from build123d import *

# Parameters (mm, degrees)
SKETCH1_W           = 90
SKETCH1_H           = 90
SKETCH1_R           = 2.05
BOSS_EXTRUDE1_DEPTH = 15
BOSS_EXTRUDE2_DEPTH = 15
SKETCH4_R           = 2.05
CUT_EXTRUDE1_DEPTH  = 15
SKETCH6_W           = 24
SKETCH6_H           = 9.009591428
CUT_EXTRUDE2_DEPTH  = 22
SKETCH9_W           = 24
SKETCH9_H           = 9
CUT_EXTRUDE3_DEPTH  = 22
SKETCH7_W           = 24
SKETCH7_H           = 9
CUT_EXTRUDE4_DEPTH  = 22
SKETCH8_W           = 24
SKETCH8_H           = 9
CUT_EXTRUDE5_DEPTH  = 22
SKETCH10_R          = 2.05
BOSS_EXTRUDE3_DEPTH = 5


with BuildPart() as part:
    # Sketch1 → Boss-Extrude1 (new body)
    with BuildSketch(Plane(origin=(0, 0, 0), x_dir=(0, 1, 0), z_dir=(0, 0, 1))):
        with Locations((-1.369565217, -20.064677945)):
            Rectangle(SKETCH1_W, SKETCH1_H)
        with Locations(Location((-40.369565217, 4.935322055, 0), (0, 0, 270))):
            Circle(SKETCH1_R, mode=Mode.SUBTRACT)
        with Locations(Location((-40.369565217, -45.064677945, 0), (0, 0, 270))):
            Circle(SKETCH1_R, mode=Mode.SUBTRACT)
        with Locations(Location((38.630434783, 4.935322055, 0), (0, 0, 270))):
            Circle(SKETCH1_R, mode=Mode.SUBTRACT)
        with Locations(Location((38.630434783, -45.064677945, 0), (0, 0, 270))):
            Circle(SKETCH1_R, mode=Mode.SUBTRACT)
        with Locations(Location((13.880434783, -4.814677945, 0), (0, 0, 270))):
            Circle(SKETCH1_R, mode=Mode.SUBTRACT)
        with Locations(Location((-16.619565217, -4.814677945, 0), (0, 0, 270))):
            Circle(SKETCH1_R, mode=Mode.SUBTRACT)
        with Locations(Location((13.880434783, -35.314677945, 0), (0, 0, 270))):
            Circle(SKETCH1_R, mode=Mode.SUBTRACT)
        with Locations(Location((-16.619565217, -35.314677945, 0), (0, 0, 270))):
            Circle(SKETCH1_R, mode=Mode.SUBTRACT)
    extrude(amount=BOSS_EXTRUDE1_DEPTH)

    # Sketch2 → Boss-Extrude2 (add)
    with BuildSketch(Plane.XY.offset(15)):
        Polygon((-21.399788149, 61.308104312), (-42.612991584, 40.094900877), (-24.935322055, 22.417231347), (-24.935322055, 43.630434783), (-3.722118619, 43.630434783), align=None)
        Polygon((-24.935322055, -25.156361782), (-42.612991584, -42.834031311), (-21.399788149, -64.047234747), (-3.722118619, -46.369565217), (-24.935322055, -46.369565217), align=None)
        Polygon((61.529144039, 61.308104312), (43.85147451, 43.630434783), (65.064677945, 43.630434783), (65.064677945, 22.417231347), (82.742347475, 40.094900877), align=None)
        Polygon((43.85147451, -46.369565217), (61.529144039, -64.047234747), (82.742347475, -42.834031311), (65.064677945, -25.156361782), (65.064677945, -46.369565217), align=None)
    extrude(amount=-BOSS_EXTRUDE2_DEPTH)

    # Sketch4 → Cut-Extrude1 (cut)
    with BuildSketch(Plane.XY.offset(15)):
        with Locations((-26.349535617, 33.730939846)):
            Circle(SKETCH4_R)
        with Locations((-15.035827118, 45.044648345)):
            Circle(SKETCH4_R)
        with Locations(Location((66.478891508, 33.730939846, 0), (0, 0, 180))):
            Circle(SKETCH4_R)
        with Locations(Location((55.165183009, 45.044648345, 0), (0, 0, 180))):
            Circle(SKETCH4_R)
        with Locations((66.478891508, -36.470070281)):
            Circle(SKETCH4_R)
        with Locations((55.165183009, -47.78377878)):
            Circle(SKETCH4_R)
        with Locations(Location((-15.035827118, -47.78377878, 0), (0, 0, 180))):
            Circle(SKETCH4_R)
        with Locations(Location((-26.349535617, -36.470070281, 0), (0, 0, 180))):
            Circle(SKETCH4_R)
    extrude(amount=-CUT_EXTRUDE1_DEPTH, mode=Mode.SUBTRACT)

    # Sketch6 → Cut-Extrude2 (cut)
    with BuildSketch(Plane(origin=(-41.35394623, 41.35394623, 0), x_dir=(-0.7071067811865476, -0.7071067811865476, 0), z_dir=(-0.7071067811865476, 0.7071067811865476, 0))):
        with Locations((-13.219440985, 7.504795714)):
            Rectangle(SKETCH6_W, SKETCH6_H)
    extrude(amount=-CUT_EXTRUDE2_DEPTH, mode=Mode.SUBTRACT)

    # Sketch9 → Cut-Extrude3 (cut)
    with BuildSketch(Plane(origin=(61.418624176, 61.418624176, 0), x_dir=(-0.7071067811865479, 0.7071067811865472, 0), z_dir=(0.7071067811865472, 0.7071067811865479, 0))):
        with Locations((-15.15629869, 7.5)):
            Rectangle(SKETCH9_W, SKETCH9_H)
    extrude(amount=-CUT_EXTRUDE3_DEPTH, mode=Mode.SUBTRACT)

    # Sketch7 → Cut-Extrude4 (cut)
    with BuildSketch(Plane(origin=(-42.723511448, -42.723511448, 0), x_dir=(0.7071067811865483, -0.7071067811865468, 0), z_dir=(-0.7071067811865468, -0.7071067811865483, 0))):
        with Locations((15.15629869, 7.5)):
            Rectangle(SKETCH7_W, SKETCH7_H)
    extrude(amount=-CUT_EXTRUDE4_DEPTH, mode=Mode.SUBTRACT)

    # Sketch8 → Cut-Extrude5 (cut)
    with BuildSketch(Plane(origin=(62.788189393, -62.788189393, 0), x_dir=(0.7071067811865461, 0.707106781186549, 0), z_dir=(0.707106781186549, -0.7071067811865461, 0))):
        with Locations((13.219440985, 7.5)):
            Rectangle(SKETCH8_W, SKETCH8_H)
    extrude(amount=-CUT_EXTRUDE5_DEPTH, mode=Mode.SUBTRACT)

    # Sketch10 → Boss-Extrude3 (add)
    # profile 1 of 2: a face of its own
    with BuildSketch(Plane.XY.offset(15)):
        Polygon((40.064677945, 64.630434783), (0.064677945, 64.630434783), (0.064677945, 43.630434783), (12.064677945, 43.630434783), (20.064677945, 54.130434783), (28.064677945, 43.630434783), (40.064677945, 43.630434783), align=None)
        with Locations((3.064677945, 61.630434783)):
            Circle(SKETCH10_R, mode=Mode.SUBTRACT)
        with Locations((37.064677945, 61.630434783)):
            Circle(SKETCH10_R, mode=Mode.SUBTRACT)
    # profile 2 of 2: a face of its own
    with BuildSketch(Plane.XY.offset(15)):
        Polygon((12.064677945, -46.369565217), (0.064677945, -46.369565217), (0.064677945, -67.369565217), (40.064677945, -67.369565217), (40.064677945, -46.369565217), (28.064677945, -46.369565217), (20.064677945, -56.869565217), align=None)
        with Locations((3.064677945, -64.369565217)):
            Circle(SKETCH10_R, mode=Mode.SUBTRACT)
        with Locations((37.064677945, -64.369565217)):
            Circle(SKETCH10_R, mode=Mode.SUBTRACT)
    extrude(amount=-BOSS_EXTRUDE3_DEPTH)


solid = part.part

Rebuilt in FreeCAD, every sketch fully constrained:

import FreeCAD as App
import Part
import Sketcher

V = App.Vector
Q = App.Units.Quantity

doc = App.newDocument("Part")
params = doc.addObject("Spreadsheet::Sheet", "Params")
for row, (alias, value) in enumerate([
    ("sketch1_diameter", "4.1 mm"),
    ("sketch1_width", "90 mm"),
    ("pad1_length", "15 mm"),
    ("sketch2_length", "30 mm"),
    ("sketch2_length2", "25 mm"),
    ("pad2_length", "15 mm"),
    ("sketch3_diameter", "4.1 mm"),
    ("pocket1_length", "15 mm"),
    ("sketch4_width", "24 mm"),
    ("pocket2_length", "22 mm"),
    ("sketch5_width", "24 mm"),
    ("sketch5_height", "9 mm"),
    ("pocket3_length", "22 mm"),
    ("sketch6_width", "24 mm"),
    ("sketch6_height", "9 mm"),
    ("pocket4_length", "22 mm"),
    ("sketch7_width", "24 mm"),
    ("sketch7_height", "9 mm"),
    ("pocket5_length", "22 mm"),
    ("sketch8_diameter", "4.1 mm"),
    ("sketch8_width", "40 mm"),
    ("sketch8_width2", "12 mm"),
    ("sketch8_height", "21 mm"),
    ("pad3_length", "5 mm"),
], start=1):
    params.set(f"A{row}", alias)
    params.set(f"B{row}", "=" + value)
    params.setAlias(f"B{row}", alias)

body = doc.addObject("PartDesign::Body", "Body")

# Sketch on XY plane
sketch1 = doc.addObject("Sketcher::SketchObject", "Sketch")
body.addObject(sketch1)
sketch1.AttachmentSupport = (doc.XY_Plane, [""])
sketch1.MapMode = "FlatFace"
sketch1.addGeometry(Part.LineSegment(V(-24.9, -46.4, 0), V(65.1, -46.4, 0)), False)
sketch1.addGeometry(Part.LineSegment(V(65.1, -46.4, 0), V(65.1, 43.6, 0)), False)
sketch1.addGeometry(Part.LineSegment(V(65.1, 43.6, 0), V(-24.9, 43.6, 0)), False)
sketch1.addGeometry(Part.LineSegment(V(-24.9, 43.6, 0), V(-24.9, -46.4, 0)), False)
sketch1.addGeometry(Part.Circle(V(45.1, -40.4, 0), V(0, 0, 1), 2), False)
sketch1.addGeometry(Part.Circle(V(35.3, -16.6, 0), V(0, 0, 1), 2), False)
sketch1.addGeometry(Part.Circle(V(35.3, 13.9, 0), V(0, 0, 1), 2), False)
sketch1.addGeometry(Part.Circle(V(45.1, 38.6, 0), V(0, 0, 1), 2), False)
sketch1.addGeometry(Part.Circle(V(-4.9, -40.4, 0), V(0, 0, 1), 2), False)
sketch1.addGeometry(Part.Circle(V(4.8, -16.6, 0), V(0, 0, 1), 2), False)
sketch1.addGeometry(Part.Circle(V(4.8, 13.9, 0), V(0, 0, 1), 2), False)
sketch1.addGeometry(Part.Circle(V(-4.9, 38.6, 0), V(0, 0, 1), 2), False)
sketch1.addConstraint(Sketcher.Constraint("Coincident", 0, 2, 1, 1))
sketch1.addConstraint(Sketcher.Constraint("Coincident", 1, 2, 2, 1))
sketch1.addConstraint(Sketcher.Constraint("Coincident", 2, 2, 3, 1))
sketch1.addConstraint(Sketcher.Constraint("Coincident", 3, 2, 0, 1))
sketch1.addConstraint(Sketcher.Constraint("Horizontal", 0))
sketch1.addConstraint(Sketcher.Constraint("Vertical", 1))
sketch1.addConstraint(Sketcher.Constraint("Horizontal", 2))
sketch1.addConstraint(Sketcher.Constraint("Vertical", 3))
sketch1.addConstraint(Sketcher.Constraint("Equal", 4, 5))
sketch1.addConstraint(Sketcher.Constraint("Equal", 5, 6))
sketch1.addConstraint(Sketcher.Constraint("Equal", 6, 7))
sketch1.addConstraint(Sketcher.Constraint("Equal", 7, 8))
sketch1.addConstraint(Sketcher.Constraint("Equal", 8, 9))
sketch1.addConstraint(Sketcher.Constraint("Equal", 9, 10))
sketch1.addConstraint(Sketcher.Constraint("Equal", 10, 11))
sketch1.addConstraint(Sketcher.Constraint("Horizontal", 4, 3, 8, 3))
sketch1.addConstraint(Sketcher.Constraint("Horizontal", 5, 3, 9, 3))
sketch1.addConstraint(Sketcher.Constraint("Horizontal", 6, 3, 10, 3))
sketch1.addConstraint(Sketcher.Constraint("Horizontal", 7, 3, 11, 3))
sketch1.addConstraint(Sketcher.Constraint("Vertical", 5, 3, 6, 3))
sketch1.addConstraint(Sketcher.Constraint("Vertical", 4, 3, 7, 3))
sketch1.addConstraint(Sketcher.Constraint("Vertical", 9, 3, 10, 3))
sketch1.addConstraint(Sketcher.Constraint("Vertical", 8, 3, 11, 3))
sketch1.addConstraint(Sketcher.Constraint("Equal", 2, 1))
sketch1.addConstraint(Sketcher.Constraint("Diameter", 4, Q("4.1 mm")))
sketch1.addConstraint(Sketcher.Constraint("DistanceX", 0, 1, 0, 2, Q("90 mm")))
sketch1.addConstraint(Sketcher.Constraint("DistanceY", 4, 3, 7, 3, Q("79 mm")))
sketch1.addConstraint(Sketcher.Constraint("DistanceX", 8, 3, 4, 3, Q("50 mm")))
sketch1.addConstraint(Sketcher.Constraint("DistanceX", 4, 3, 0, 2, Q("20 mm")))
sketch1.addConstraint(Sketcher.Constraint("DistanceY", 0, 2, 4, 3, Q("6 mm")))
sketch1.addConstraint(Sketcher.Constraint("DistanceY", 5, 3, 6, 3, Q("30.5 mm")))
sketch1.addConstraint(Sketcher.Constraint("DistanceX", 9, 3, 5, 3, Q("30.5 mm")))
sketch1.addConstraint(Sketcher.Constraint("DistanceX", 5, 3, 4, 3, Q("9.75 mm")))
sketch1.addConstraint(Sketcher.Constraint("DistanceY", 4, 3, 5, 3, Q("23.75 mm")))
sketch1.addConstraint(Sketcher.Constraint("DistanceX", -1, 1, 4, 3, Q("45.064678 mm")))
sketch1.addConstraint(Sketcher.Constraint("DistanceY", 4, 3, -1, 1, Q("40.369565 mm")))
sketch1.setExpression("Constraints[24]", "Params.sketch1_diameter")
sketch1.setExpression("Constraints[25]", "Params.sketch1_width")
pad1 = doc.addObject("PartDesign::Pad", "Pad")
body.addObject(pad1)
pad1.Profile = sketch1
pad1.setExpression("Length", "Params.pad1_length")

# Sketch on XY plane
sketch2 = doc.addObject("Sketcher::SketchObject", "Sketch001")
body.addObject(sketch2)
sketch2.AttachmentSupport = (doc.XY_Plane, [""])
sketch2.MapMode = "FlatFace"
sketch2.AttachmentOffset = App.Placement(V(0, 0, 15), App.Rotation())
sketch2.addGeometry(Part.LineSegment(V(-21, 61, 0), V(-43, 40, 0)), False)
sketch2.addGeometry(Part.LineSegment(V(-43, 40, 0), V(-25, 22, 0)), False)
sketch2.addGeometry(Part.LineSegment(V(-25, 22, 0), V(-25, 44, 0)), False)
sketch2.addGeometry(Part.LineSegment(V(-25, 44, 0), V(-4, 44, 0)), False)
sketch2.addGeometry(Part.LineSegment(V(-4, 44, 0), V(-21, 61, 0)), False)
sketch2.addGeometry(Part.LineSegment(V(-25, -25, 0), V(-43, -43, 0)), False)
sketch2.addGeometry(Part.LineSegment(V(-43, -43, 0), V(-21, -64, 0)), False)
sketch2.addGeometry(Part.LineSegment(V(-21, -64, 0), V(-4, -46, 0)), False)
sketch2.addGeometry(Part.LineSegment(V(-4, -46, 0), V(-25, -46, 0)), False)
sketch2.addGeometry(Part.LineSegment(V(-25, -46, 0), V(-25, -25, 0)), False)
sketch2.addGeometry(Part.LineSegment(V(62, 61, 0), V(44, 44, 0)), False)
sketch2.addGeometry(Part.LineSegment(V(44, 44, 0), V(65, 44, 0)), False)
sketch2.addGeometry(Part.LineSegment(V(65, 44, 0), V(65, 22, 0)), False)
sketch2.addGeometry(Part.LineSegment(V(65, 22, 0), V(83, 40, 0)), False)
sketch2.addGeometry(Part.LineSegment(V(83, 40, 0), V(62, 61, 0)), False)
sketch2.addGeometry(Part.LineSegment(V(44, -46, 0), V(62, -64, 0)), False)
sketch2.addGeometry(Part.LineSegment(V(62, -64, 0), V(83, -43, 0)), False)
sketch2.addGeometry(Part.LineSegment(V(83, -43, 0), V(65, -25, 0)), False)
sketch2.addGeometry(Part.LineSegment(V(65, -25, 0), V(65, -46, 0)), False)
sketch2.addGeometry(Part.LineSegment(V(65, -46, 0), V(44, -46, 0)), False)
sketch2.addConstraint(Sketcher.Constraint("Coincident", 0, 2, 1, 1))
sketch2.addConstraint(Sketcher.Constraint("Coincident", 1, 2, 2, 1))
sketch2.addConstraint(Sketcher.Constraint("Coincident", 2, 2, 3, 1))
sketch2.addConstraint(Sketcher.Constraint("Coincident", 3, 2, 4, 1))
sketch2.addConstraint(Sketcher.Constraint("Coincident", 4, 2, 0, 1))
sketch2.addConstraint(Sketcher.Constraint("Coincident", 5, 2, 6, 1))
sketch2.addConstraint(Sketcher.Constraint("Coincident", 6, 2, 7, 1))
sketch2.addConstraint(Sketcher.Constraint("Coincident", 7, 2, 8, 1))
sketch2.addConstraint(Sketcher.Constraint("Coincident", 8, 2, 9, 1))
sketch2.addConstraint(Sketcher.Constraint("Coincident", 9, 2, 5, 1))
sketch2.addConstraint(Sketcher.Constraint("Coincident", 10, 2, 11, 1))
sketch2.addConstraint(Sketcher.Constraint("Coincident", 11, 2, 12, 1))
sketch2.addConstraint(Sketcher.Constraint("Coincident", 12, 2, 13, 1))
sketch2.addConstraint(Sketcher.Constraint("Coincident", 13, 2, 14, 1))
sketch2.addConstraint(Sketcher.Constraint("Coincident", 14, 2, 10, 1))
sketch2.addConstraint(Sketcher.Constraint("Coincident", 15, 2, 16, 1))
sketch2.addConstraint(Sketcher.Constraint("Coincident", 16, 2, 17, 1))
sketch2.addConstraint(Sketcher.Constraint("Coincident", 17, 2, 18, 1))
sketch2.addConstraint(Sketcher.Constraint("Coincident", 18, 2, 19, 1))
sketch2.addConstraint(Sketcher.Constraint("Coincident", 19, 2, 15, 1))
sketch2.addConstraint(Sketcher.Constraint("Vertical", 2))
sketch2.addConstraint(Sketcher.Constraint("Horizontal", 3))
sketch2.addConstraint(Sketcher.Constraint("Horizontal", 8))
sketch2.addConstraint(Sketcher.Constraint("Vertical", 9))
sketch2.addConstraint(Sketcher.Constraint("Horizontal", 11))
sketch2.addConstraint(Sketcher.Constraint("Vertical", 12))
sketch2.addConstraint(Sketcher.Constraint("Vertical", 18))
sketch2.addConstraint(Sketcher.Constraint("Horizontal", 19))
sketch2.addConstraint(Sketcher.Constraint("Perpendicular", 0, 1))
sketch2.addConstraint(Sketcher.Constraint("Parallel", 1, 4))
sketch2.addConstraint(Sketcher.Constraint("Perpendicular", 4, 5))
sketch2.addConstraint(Sketcher.Constraint("Perpendicular", 5, 6))
sketch2.addConstraint(Sketcher.Constraint("Perpendicular", 6, 7))
sketch2.addConstraint(Sketcher.Constraint("Parallel", 7, 10))
sketch2.addConstraint(Sketcher.Constraint("Parallel", 10, 13))
sketch2.addConstraint(Sketcher.Constraint("Perpendicular", 13, 14))
sketch2.addConstraint(Sketcher.Constraint("Parallel", 14, 15))
sketch2.addConstraint(Sketcher.Constraint("Perpendicular", 15, 16))
sketch2.addConstraint(Sketcher.Constraint("Perpendicular", 16, 17))
sketch2.addConstraint(Sketcher.Constraint("Horizontal", 3, 2, 10, 2))
sketch2.addConstraint(Sketcher.Constraint("Horizontal", 1, 2, 12, 2))
sketch2.addConstraint(Sketcher.Constraint("Horizontal", 0, 2, 13, 2))
sketch2.addConstraint(Sketcher.Constraint("Horizontal", 4, 2, 14, 2))
sketch2.addConstraint(Sketcher.Constraint("Horizontal", 6, 2, 15, 2))
sketch2.addConstraint(Sketcher.Constraint("Horizontal", 5, 2, 16, 2))
sketch2.addConstraint(Sketcher.Constraint("Horizontal", 9, 2, 17, 2))
sketch2.addConstraint(Sketcher.Constraint("Horizontal", 8, 2, 18, 2))
sketch2.addConstraint(Sketcher.Constraint("Vertical", 0, 2, 5, 2))
sketch2.addConstraint(Sketcher.Constraint("Vertical", 4, 2, 6, 2))
sketch2.addConstraint(Sketcher.Constraint("Vertical", 3, 2, 7, 2))
sketch2.addConstraint(Sketcher.Constraint("Vertical", 2, 2, 8, 2))
sketch2.addConstraint(Sketcher.Constraint("Vertical", 14, 2, 15, 2))
sketch2.addConstraint(Sketcher.Constraint("Vertical", 13, 2, 16, 2))
sketch2.addConstraint(Sketcher.Constraint("Equal", 19, 2))
sketch2.addConstraint(Sketcher.Constraint("Distance", 0, Q("30 mm")))
sketch2.addConstraint(Sketcher.Constraint("Distance", 1, Q("25 mm")))
sketch2.addConstraint(Sketcher.Constraint("DistanceY", 7, 2, 3, 2, Q("90 mm")))
sketch2.addConstraint(Sketcher.Constraint("DistanceX", 2, 2, 11, 2, Q("90 mm")))
sketch2.addConstraint(Sketcher.Constraint("DistanceY", -1, 1, 0, 2, Q("40.094901 mm")))
sketch2.addConstraint(Sketcher.Constraint("DistanceX", 0, 2, -1, 1, Q("42.612992 mm")))
sketch2.setExpression("Constraints[54]", "Params.sketch2_length")
sketch2.setExpression("Constraints[55]", "Params.sketch2_length2")
pad2 = doc.addObject("PartDesign::Pad", "Pad001")
body.addObject(pad2)
pad2.Profile = sketch2
pad2.setExpression("Length", "Params.pad2_length")
pad2.Reversed = True

# Sketch on XY plane
sketch3 = doc.addObject("Sketcher::SketchObject", "Sketch002")
body.addObject(sketch3)
sketch3.AttachmentSupport = (doc.XY_Plane, [""])
sketch3.MapMode = "FlatFace"
sketch3.AttachmentOffset = App.Placement(V(0, 0, 15), App.Rotation())
sketch3.addGeometry(Part.Circle(V(-26.3, 33.7, 0), V(0, 0, 1), 2), False)
sketch3.addGeometry(Part.Circle(V(-15, 45, 0), V(0, 0, 1), 2), False)
sketch3.addGeometry(Part.Circle(V(66.5, 33.7, 0), V(0, 0, 1), 2), False)
sketch3.addGeometry(Part.Circle(V(55.2, 45, 0), V(0, 0, 1), 2), False)
sketch3.addGeometry(Part.Circle(V(66.5, -36.5, 0), V(0, 0, 1), 2), False)
sketch3.addGeometry(Part.Circle(V(55.2, -47.8, 0), V(0, 0, 1), 2), False)
sketch3.addGeometry(Part.Circle(V(-15, -47.8, 0), V(0, 0, 1), 2), False)
sketch3.addGeometry(Part.Circle(V(-26.3, -36.5, 0), V(0, 0, 1), 2), False)
sketch3.addConstraint(Sketcher.Constraint("Equal", 0, 1))
sketch3.addConstraint(Sketcher.Constraint("Equal", 1, 2))
sketch3.addConstraint(Sketcher.Constraint("Equal", 2, 3))
sketch3.addConstraint(Sketcher.Constraint("Equal", 3, 4))
sketch3.addConstraint(Sketcher.Constraint("Equal", 4, 5))
sketch3.addConstraint(Sketcher.Constraint("Equal", 5, 6))
sketch3.addConstraint(Sketcher.Constraint("Equal", 6, 7))
sketch3.addConstraint(Sketcher.Constraint("Horizontal", 0, 3, 2, 3))
sketch3.addConstraint(Sketcher.Constraint("Horizontal", 1, 3, 3, 3))
sketch3.addConstraint(Sketcher.Constraint("Horizontal", 5, 3, 6, 3))
sketch3.addConstraint(Sketcher.Constraint("Horizontal", 4, 3, 7, 3))
sketch3.addConstraint(Sketcher.Constraint("Vertical", 2, 3, 4, 3))
sketch3.addConstraint(Sketcher.Constraint("Vertical", 3, 3, 5, 3))
sketch3.addConstraint(Sketcher.Constraint("Vertical", 1, 3, 6, 3))
sketch3.addConstraint(Sketcher.Constraint("Vertical", 0, 3, 7, 3))
sketch3.addConstraint(Sketcher.Constraint("Diameter", 0, Q("4.1 mm")))
sketch3.addConstraint(Sketcher.Constraint("DistanceY", -1, 1, 0, 3, Q("33.73094 mm")))
sketch3.addConstraint(Sketcher.Constraint("DistanceY", -1, 1, 1, 3, Q("45.044648 mm")))
sketch3.addConstraint(Sketcher.Constraint("DistanceX", -1, 1, 2, 3, Q("66.478892 mm")))
sketch3.addConstraint(Sketcher.Constraint("DistanceY", 4, 3, -1, 1, Q("36.47007 mm")))
sketch3.addConstraint(Sketcher.Constraint("DistanceY", 5, 3, -1, 1, Q("47.783779 mm")))
sketch3.addConstraint(Sketcher.Constraint("DistanceX", 0, 3, 1, 3, Q("11.313708 mm")))
sketch3.addConstraint(Sketcher.Constraint("DistanceX", 1, 3, 2, 3, Q("81.514719 mm")))
sketch3.addConstraint(Sketcher.Constraint("DistanceX", 3, 3, 2, 3, Q("11.313708 mm")))
sketch3.setExpression("Constraints[15]", "Params.sketch3_diameter")
pocket1 = doc.addObject("PartDesign::Pocket", "Pocket")
body.addObject(pocket1)
pocket1.Profile = sketch3
pocket1.setExpression("Length", "Params.pocket1_length")

# Sketch on an angled plane
sketch4 = doc.addObject("Sketcher::SketchObject", "Sketch003")
body.addObject(sketch4)
sketch4.Placement = App.Placement(V(-41.353946, 41.353946, 0), App.Rotation(V(-0.707106781, -0.707106781, 0), V(0, 0, 0.999999999), V(-0.707106781, 0.707106781, 0), "ZXY"))
sketch4.addGeometry(Part.LineSegment(V(-25, 12, 0), V(-25, 3, 0)), False)
sketch4.addGeometry(Part.LineSegment(V(-25, 3, 0), V(-1, 3, 0)), False)
sketch4.addGeometry(Part.LineSegment(V(-1, 3, 0), V(-1, 12, 0)), False)
sketch4.addGeometry(Part.LineSegment(V(-1, 12, 0), V(-25, 12, 0)), False)
sketch4.addConstraint(Sketcher.Constraint("Coincident", 0, 2, 1, 1))
sketch4.addConstraint(Sketcher.Constraint("Coincident", 1, 2, 2, 1))
sketch4.addConstraint(Sketcher.Constraint("Coincident", 2, 2, 3, 1))
sketch4.addConstraint(Sketcher.Constraint("Coincident", 3, 2, 0, 1))
sketch4.addConstraint(Sketcher.Constraint("Vertical", 0))
sketch4.addConstraint(Sketcher.Constraint("Horizontal", 1))
sketch4.addConstraint(Sketcher.Constraint("Vertical", 2))
sketch4.addConstraint(Sketcher.Constraint("Horizontal", 3))
sketch4.addConstraint(Sketcher.Constraint("DistanceX", 1, 1, 1, 2, Q("24 mm")))
sketch4.addConstraint(Sketcher.Constraint("DistanceY", -1, 1, 0, 2, Q("3 mm")))
sketch4.addConstraint(Sketcher.Constraint("DistanceY", 0, 2, 0, 1, Q("9.009591 mm")))
sketch4.addConstraint(Sketcher.Constraint("DistanceX", 0, 2, -1, 1, Q("25.219441 mm")))
sketch4.setExpression("Constraints[8]", "Params.sketch4_width")
pocket2 = doc.addObject("PartDesign::Pocket", "Pocket001")
body.addObject(pocket2)
pocket2.Profile = sketch4
pocket2.setExpression("Length", "Params.pocket2_length")

# Sketch on an angled plane
sketch5 = doc.addObject("Sketcher::SketchObject", "Sketch004")
body.addObject(sketch5)
sketch5.Placement = App.Placement(V(61.418624, 61.418624, 0), App.Rotation(V(-0.707106781, 0.707106781, 0), V(0, 0, 0.999999999), V(0.707106781, 0.707106781, 0), "ZXY"))
sketch5.addGeometry(Part.LineSegment(V(-27, 12, 0), V(-27, 3, 0)), False)
sketch5.addGeometry(Part.LineSegment(V(-27, 3, 0), V(-3, 3, 0)), False)
sketch5.addGeometry(Part.LineSegment(V(-3, 3, 0), V(-3, 12, 0)), False)
sketch5.addGeometry(Part.LineSegment(V(-3, 12, 0), V(-27, 12, 0)), False)
sketch5.addConstraint(Sketcher.Constraint("Coincident", 0, 2, 1, 1))
sketch5.addConstraint(Sketcher.Constraint("Coincident", 1, 2, 2, 1))
sketch5.addConstraint(Sketcher.Constraint("Coincident", 2, 2, 3, 1))
sketch5.addConstraint(Sketcher.Constraint("Coincident", 3, 2, 0, 1))
sketch5.addConstraint(Sketcher.Constraint("Vertical", 0))
sketch5.addConstraint(Sketcher.Constraint("Horizontal", 1))
sketch5.addConstraint(Sketcher.Constraint("Vertical", 2))
sketch5.addConstraint(Sketcher.Constraint("Horizontal", 3))
sketch5.addConstraint(Sketcher.Constraint("DistanceX", 1, 1, 1, 2, Q("24 mm")))
sketch5.addConstraint(Sketcher.Constraint("DistanceY", 0, 2, 0, 1, Q("9 mm")))
sketch5.addConstraint(Sketcher.Constraint("DistanceY", -1, 1, 0, 2, Q("3 mm")))
sketch5.addConstraint(Sketcher.Constraint("DistanceX", 0, 2, -1, 1, Q("27.156299 mm")))
sketch5.setExpression("Constraints[8]", "Params.sketch5_width")
sketch5.setExpression("Constraints[9]", "Params.sketch5_height")
pocket3 = doc.addObject("PartDesign::Pocket", "Pocket002")
body.addObject(pocket3)
pocket3.Profile = sketch5
pocket3.setExpression("Length", "Params.pocket3_length")

# Sketch on an angled plane
sketch6 = doc.addObject("Sketcher::SketchObject", "Sketch005")
body.addObject(sketch6)
sketch6.Placement = App.Placement(V(-42.723511, -42.723511, 0), App.Rotation(V(0.707106781, -0.707106781, 0), V(0, 0, 0.999999999), V(-0.707106781, -0.707106781, 0), "ZXY"))
sketch6.addGeometry(Part.LineSegment(V(3, 12, 0), V(3, 3, 0)), False)
sketch6.addGeometry(Part.LineSegment(V(3, 3, 0), V(27, 3, 0)), False)
sketch6.addGeometry(Part.LineSegment(V(27, 3, 0), V(27, 12, 0)), False)
sketch6.addGeometry(Part.LineSegment(V(27, 12, 0), V(3, 12, 0)), False)
sketch6.addConstraint(Sketcher.Constraint("Coincident", 0, 2, 1, 1))
sketch6.addConstraint(Sketcher.Constraint("Coincident", 1, 2, 2, 1))
sketch6.addConstraint(Sketcher.Constraint("Coincident", 2, 2, 3, 1))
sketch6.addConstraint(Sketcher.Constraint("Coincident", 3, 2, 0, 1))
sketch6.addConstraint(Sketcher.Constraint("Vertical", 0))
sketch6.addConstraint(Sketcher.Constraint("Horizontal", 1))
sketch6.addConstraint(Sketcher.Constraint("Vertical", 2))
sketch6.addConstraint(Sketcher.Constraint("Horizontal", 3))
sketch6.addConstraint(Sketcher.Constraint("DistanceX", 1, 1, 1, 2, Q("24 mm")))
sketch6.addConstraint(Sketcher.Constraint("DistanceY", 0, 2, 0, 1, Q("9 mm")))
sketch6.addConstraint(Sketcher.Constraint("DistanceY", -1, 1, 0, 2, Q("3 mm")))
sketch6.addConstraint(Sketcher.Constraint("DistanceX", -1, 1, 0, 2, Q("3.156299 mm")))
sketch6.setExpression("Constraints[8]", "Params.sketch6_width")
sketch6.setExpression("Constraints[9]", "Params.sketch6_height")
pocket4 = doc.addObject("PartDesign::Pocket", "Pocket003")
body.addObject(pocket4)
pocket4.Profile = sketch6
pocket4.setExpression("Length", "Params.pocket4_length")

# Sketch on an angled plane
sketch7 = doc.addObject("Sketcher::SketchObject", "Sketch006")
body.addObject(sketch7)
sketch7.Placement = App.Placement(V(62.788189, -62.788189, 0), App.Rotation(V(0.707106781, 0.707106781, 0), V(0, 0, 0.999999999), V(0.707106781, -0.707106781, 0), "ZXY"))
sketch7.addGeometry(Part.LineSegment(V(1, 12, 0), V(1, 3, 0)), False)
sketch7.addGeometry(Part.LineSegment(V(1, 3, 0), V(25, 3, 0)), False)
sketch7.addGeometry(Part.LineSegment(V(25, 3, 0), V(25, 12, 0)), False)
sketch7.addGeometry(Part.LineSegment(V(25, 12, 0), V(1, 12, 0)), False)
sketch7.addConstraint(Sketcher.Constraint("Coincident", 0, 2, 1, 1))
sketch7.addConstraint(Sketcher.Constraint("Coincident", 1, 2, 2, 1))
sketch7.addConstraint(Sketcher.Constraint("Coincident", 2, 2, 3, 1))
sketch7.addConstraint(Sketcher.Constraint("Coincident", 3, 2, 0, 1))
sketch7.addConstraint(Sketcher.Constraint("Vertical", 0))
sketch7.addConstraint(Sketcher.Constraint("Horizontal", 1))
sketch7.addConstraint(Sketcher.Constraint("Vertical", 2))
sketch7.addConstraint(Sketcher.Constraint("Horizontal", 3))
sketch7.addConstraint(Sketcher.Constraint("DistanceX", 1, 1, 1, 2, Q("24 mm")))
sketch7.addConstraint(Sketcher.Constraint("DistanceY", 0, 2, 0, 1, Q("9 mm")))
sketch7.addConstraint(Sketcher.Constraint("DistanceY", -1, 1, 0, 2, Q("3 mm")))
sketch7.addConstraint(Sketcher.Constraint("DistanceX", -1, 1, 0, 2, Q("1.219441 mm")))
sketch7.setExpression("Constraints[8]", "Params.sketch7_width")
sketch7.setExpression("Constraints[9]", "Params.sketch7_height")
pocket5 = doc.addObject("PartDesign::Pocket", "Pocket004")
body.addObject(pocket5)
pocket5.Profile = sketch7
pocket5.setExpression("Length", "Params.pocket5_length")

# Sketch on XY plane
sketch8 = doc.addObject("Sketcher::SketchObject", "Sketch007")
body.addObject(sketch8)
sketch8.AttachmentSupport = (doc.XY_Plane, [""])
sketch8.MapMode = "FlatFace"
sketch8.AttachmentOffset = App.Placement(V(0, 0, 15), App.Rotation())
sketch8.addGeometry(Part.LineSegment(V(40.1, 64.6, 0), V(0.1, 64.6, 0)), False)
sketch8.addGeometry(Part.LineSegment(V(0.1, 64.6, 0), V(0.1, 43.6, 0)), False)
sketch8.addGeometry(Part.LineSegment(V(0.1, 43.6, 0), V(12.1, 43.6, 0)), False)
sketch8.addGeometry(Part.LineSegment(V(12.1, 43.6, 0), V(20.1, 54.1, 0)), False)
sketch8.addGeometry(Part.LineSegment(V(20.1, 54.1, 0), V(28.1, 43.6, 0)), False)
sketch8.addGeometry(Part.LineSegment(V(28.1, 43.6, 0), V(40.1, 43.6, 0)), False)
sketch8.addGeometry(Part.LineSegment(V(40.1, 43.6, 0), V(40.1, 64.6, 0)), False)
sketch8.addGeometry(Part.Circle(V(3.1, 61.6, 0), V(0, 0, 1), 2), False)
sketch8.addGeometry(Part.Circle(V(37.1, 61.6, 0), V(0, 0, 1), 2), False)
sketch8.addGeometry(Part.LineSegment(V(12.1, -46.4, 0), V(0.1, -46.4, 0)), False)
sketch8.addGeometry(Part.LineSegment(V(0.1, -46.4, 0), V(0.1, -67.4, 0)), False)
sketch8.addGeometry(Part.LineSegment(V(0.1, -67.4, 0), V(40.1, -67.4, 0)), False)
sketch8.addGeometry(Part.LineSegment(V(40.1, -67.4, 0), V(40.1, -46.4, 0)), False)
sketch8.addGeometry(Part.LineSegment(V(40.1, -46.4, 0), V(28.1, -46.4, 0)), False)
sketch8.addGeometry(Part.LineSegment(V(28.1, -46.4, 0), V(20.1, -56.9, 0)), False)
sketch8.addGeometry(Part.LineSegment(V(20.1, -56.9, 0), V(12.1, -46.4, 0)), False)
sketch8.addGeometry(Part.Circle(V(3.1, -64.4, 0), V(0, 0, 1), 2), False)
sketch8.addGeometry(Part.Circle(V(37.1, -64.4, 0), V(0, 0, 1), 2), False)
sketch8.addConstraint(Sketcher.Constraint("Coincident", 0, 2, 1, 1))
sketch8.addConstraint(Sketcher.Constraint("Coincident", 1, 2, 2, 1))
sketch8.addConstraint(Sketcher.Constraint("Coincident", 2, 2, 3, 1))
sketch8.addConstraint(Sketcher.Constraint("Coincident", 3, 2, 4, 1))
sketch8.addConstraint(Sketcher.Constraint("Coincident", 4, 2, 5, 1))
sketch8.addConstraint(Sketcher.Constraint("Coincident", 5, 2, 6, 1))
sketch8.addConstraint(Sketcher.Constraint("Coincident", 6, 2, 0, 1))
sketch8.addConstraint(Sketcher.Constraint("Coincident", 9, 2, 10, 1))
sketch8.addConstraint(Sketcher.Constraint("Coincident", 10, 2, 11, 1))
sketch8.addConstraint(Sketcher.Constraint("Coincident", 11, 2, 12, 1))
sketch8.addConstraint(Sketcher.Constraint("Coincident", 12, 2, 13, 1))
sketch8.addConstraint(Sketcher.Constraint("Coincident", 13, 2, 14, 1))
sketch8.addConstraint(Sketcher.Constraint("Coincident", 14, 2, 15, 1))
sketch8.addConstraint(Sketcher.Constraint("Coincident", 15, 2, 9, 1))
sketch8.addConstraint(Sketcher.Constraint("Horizontal", 0))
sketch8.addConstraint(Sketcher.Constraint("Vertical", 1))
sketch8.addConstraint(Sketcher.Constraint("Horizontal", 2))
sketch8.addConstraint(Sketcher.Constraint("Horizontal", 5))
sketch8.addConstraint(Sketcher.Constraint("Vertical", 6))
sketch8.addConstraint(Sketcher.Constraint("Horizontal", 9))
sketch8.addConstraint(Sketcher.Constraint("Vertical", 10))
sketch8.addConstraint(Sketcher.Constraint("Horizontal", 11))
sketch8.addConstraint(Sketcher.Constraint("Vertical", 12))
sketch8.addConstraint(Sketcher.Constraint("Horizontal", 13))
sketch8.addConstraint(Sketcher.Constraint("Equal", 7, 8))
sketch8.addConstraint(Sketcher.Constraint("Equal", 8, 16))
sketch8.addConstraint(Sketcher.Constraint("Equal", 16, 17))
sketch8.addConstraint(Sketcher.Constraint("Parallel", 3, 14))
sketch8.addConstraint(Sketcher.Constraint("Parallel", 4, 15))
sketch8.addConstraint(Sketcher.Constraint("Horizontal", 7, 3, 8, 3))
sketch8.addConstraint(Sketcher.Constraint("Horizontal", 16, 3, 17, 3))
sketch8.addConstraint(Sketcher.Constraint("Horizontal", 2, 2, 4, 2))
sketch8.addConstraint(Sketcher.Constraint("Horizontal", 9, 2, 12, 2))
sketch8.addConstraint(Sketcher.Constraint("Vertical", 7, 3, 16, 3))
sketch8.addConstraint(Sketcher.Constraint("Vertical", 8, 3, 17, 3))
sketch8.addConstraint(Sketcher.Constraint("Vertical", 1, 2, 9, 2))
sketch8.addConstraint(Sketcher.Constraint("Vertical", 6, 2, 11, 2))
sketch8.addConstraint(Sketcher.Constraint("Vertical", 4, 2, 13, 2))
sketch8.addConstraint(Sketcher.Constraint("Vertical", 3, 2, 14, 2))
sketch8.addConstraint(Sketcher.Constraint("Vertical", 2, 2, 15, 2))
sketch8.addConstraint(Sketcher.Constraint("Equal", 2, 5))
sketch8.addConstraint(Sketcher.Constraint("Equal", 6, 10))
sketch8.addConstraint(Sketcher.Constraint("Diameter", 7, Q("4.1 mm")))
sketch8.addConstraint(Sketcher.Constraint("DistanceX", 0, 2, 0, 1, Q("40 mm")))
sketch8.addConstraint(Sketcher.Constraint("DistanceX", 2, 1, 2, 2, Q("12 mm")))
sketch8.addConstraint(Sketcher.Constraint("DistanceY", 1, 2, 1, 1, Q("21 mm")))
sketch8.addConstraint(Sketcher.Constraint("DistanceX", 7, 3, 8, 3, Q("34 mm")))
sketch8.addConstraint(Sketcher.Constraint("DistanceY", 16, 3, 7, 3, Q("126 mm")))
sketch8.addConstraint(Sketcher.Constraint("DistanceX", 0, 2, 7, 3, Q("3 mm")))
sketch8.addConstraint(Sketcher.Constraint("DistanceY", 7, 3, 0, 2, Q("3 mm")))
sketch8.addConstraint(Sketcher.Constraint("DistanceY", 16, 3, 9, 2, Q("18 mm")))
sketch8.addConstraint(Sketcher.Constraint("DistanceY", 2, 2, 3, 2, Q("10.5 mm")))
sketch8.addConstraint(Sketcher.Constraint("DistanceX", -1, 1, 7, 3, Q("3.064678 mm")))
sketch8.addConstraint(Sketcher.Constraint("DistanceY", -1, 1, 7, 3, Q("61.630435 mm")))
sketch8.setExpression("Constraints[42]", "Params.sketch8_diameter")
sketch8.setExpression("Constraints[43]", "Params.sketch8_width")
sketch8.setExpression("Constraints[44]", "Params.sketch8_width2")
sketch8.setExpression("Constraints[45]", "Params.sketch8_height")
pad3 = doc.addObject("PartDesign::Pad", "Pad002")
body.addObject(pad3)
pad3.Profile = sketch8
pad3.setExpression("Length", "Params.pad3_length")
pad3.Reversed = True

doc.recompute()
